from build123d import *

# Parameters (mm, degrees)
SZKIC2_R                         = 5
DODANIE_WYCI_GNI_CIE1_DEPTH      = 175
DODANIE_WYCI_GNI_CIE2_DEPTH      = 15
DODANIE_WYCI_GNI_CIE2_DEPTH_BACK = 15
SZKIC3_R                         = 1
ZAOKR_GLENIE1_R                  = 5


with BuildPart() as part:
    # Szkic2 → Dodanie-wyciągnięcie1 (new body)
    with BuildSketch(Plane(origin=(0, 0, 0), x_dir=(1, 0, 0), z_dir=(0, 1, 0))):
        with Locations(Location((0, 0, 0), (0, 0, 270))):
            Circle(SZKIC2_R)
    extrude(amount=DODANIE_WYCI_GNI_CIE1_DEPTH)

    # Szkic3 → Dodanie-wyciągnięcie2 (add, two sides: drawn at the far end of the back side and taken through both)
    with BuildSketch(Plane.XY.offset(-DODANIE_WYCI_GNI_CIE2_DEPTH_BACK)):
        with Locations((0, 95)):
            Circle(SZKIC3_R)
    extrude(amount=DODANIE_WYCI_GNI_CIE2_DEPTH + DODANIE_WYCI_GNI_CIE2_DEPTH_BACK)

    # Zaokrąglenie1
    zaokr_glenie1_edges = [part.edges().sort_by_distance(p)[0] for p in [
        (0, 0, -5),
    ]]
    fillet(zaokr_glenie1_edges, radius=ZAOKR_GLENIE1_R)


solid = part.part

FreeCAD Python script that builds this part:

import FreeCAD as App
import Part
import Sketcher

V = App.Vector


def edges_at(feature, points):
    """Names of the edges that pass closest to the given points."""
    edges = feature.Shape.Edges
    near = lambda p: min(range(len(edges)), key=lambda i: edges[i].distToShape(Part.Vertex(*p))[0])
    return sorted({f"Edge{near(p) + 1}" for p in points})

doc = App.newDocument("Part")
params = doc.addObject("Spreadsheet::Sheet", "Params")
for row, (alias, value) in enumerate([
    ("sketch1_diameter", "10 mm"),
    ("pad1_length", "175 mm"),
    ("sketch2_diameter", "2 mm"),
    ("pad2_length", "15 mm"),
    ("pad2_length2", "15 mm"),
    ("fillet_radius", "5 mm"),
], start=1):
    params.set(f"A{row}", alias)
    params.set(f"B{row}", "=" + value)
    params.setAlias(f"B{row}", alias)

body = doc.addObject("PartDesign::Body", "Body")

# Sketch on XZ plane
sketch1 = body.newObject("Sketcher::SketchObject", "Sketch")
sketch1.AttachmentSupport = (doc.getObject("XZ_Plane"), [""])
sketch1.MapMode = "FlatFace"
sketch1.addGeometry(Part.Circle(V(0, 0, 0), V(0, 0, 1), 5), False)
sketch1.addConstraint(Sketcher.Constraint("Coincident", 0, 3, -1, 1))
sketch1.addConstraint(Sketcher.Constraint("Diameter", 0, 10.0))
sketch1.setExpression("Constraints[1]", "Params.sketch1_diameter")
pad1 = body.newObject("PartDesign::Pad", "Pad")
pad1.Profile = sketch1
pad1.setExpression("Length", "Params.pad1_length")
pad1.Reversed = True

# Sketch on XY plane
sketch2 = body.newObject("Sketcher::SketchObject", "Sketch001")
sketch2.AttachmentSupport = (doc.getObject("XY_Plane"), [""])
sketch2.MapMode = "FlatFace"
sketch2.addGeometry(Part.Circle(V(0, 95, 0), V(0, 0, 1), 1), False)
sketch2.addConstraint(Sketcher.Constraint("PointOnObject", 0, 3, -2))
sketch2.addConstraint(Sketcher.Constraint("Diameter", 0, 2.0))
sketch2.addConstraint(Sketcher.Constraint("DistanceY", -1, 1, 0, 3, 95.0))
sketch2.setExpression("Constraints[1]", "Params.sketch2_diameter")
pad2 = body.newObject("PartDesign::Pad", "Pad001")
pad2.Profile = sketch2
pad2.Type = "TwoLengths"
pad2.setExpression("Length", "Params.pad2_length")
pad2.setExpression("Length2", "Params.pad2_length2")
doc.recompute()

fillet = body.newObject("PartDesign::Fillet", "Fillet")
fillet.Base = (pad2, edges_at(pad2, [(0, 0, -5)]))
fillet.setExpression("Radius", "Params.fillet_radius")

doc.recompute()
